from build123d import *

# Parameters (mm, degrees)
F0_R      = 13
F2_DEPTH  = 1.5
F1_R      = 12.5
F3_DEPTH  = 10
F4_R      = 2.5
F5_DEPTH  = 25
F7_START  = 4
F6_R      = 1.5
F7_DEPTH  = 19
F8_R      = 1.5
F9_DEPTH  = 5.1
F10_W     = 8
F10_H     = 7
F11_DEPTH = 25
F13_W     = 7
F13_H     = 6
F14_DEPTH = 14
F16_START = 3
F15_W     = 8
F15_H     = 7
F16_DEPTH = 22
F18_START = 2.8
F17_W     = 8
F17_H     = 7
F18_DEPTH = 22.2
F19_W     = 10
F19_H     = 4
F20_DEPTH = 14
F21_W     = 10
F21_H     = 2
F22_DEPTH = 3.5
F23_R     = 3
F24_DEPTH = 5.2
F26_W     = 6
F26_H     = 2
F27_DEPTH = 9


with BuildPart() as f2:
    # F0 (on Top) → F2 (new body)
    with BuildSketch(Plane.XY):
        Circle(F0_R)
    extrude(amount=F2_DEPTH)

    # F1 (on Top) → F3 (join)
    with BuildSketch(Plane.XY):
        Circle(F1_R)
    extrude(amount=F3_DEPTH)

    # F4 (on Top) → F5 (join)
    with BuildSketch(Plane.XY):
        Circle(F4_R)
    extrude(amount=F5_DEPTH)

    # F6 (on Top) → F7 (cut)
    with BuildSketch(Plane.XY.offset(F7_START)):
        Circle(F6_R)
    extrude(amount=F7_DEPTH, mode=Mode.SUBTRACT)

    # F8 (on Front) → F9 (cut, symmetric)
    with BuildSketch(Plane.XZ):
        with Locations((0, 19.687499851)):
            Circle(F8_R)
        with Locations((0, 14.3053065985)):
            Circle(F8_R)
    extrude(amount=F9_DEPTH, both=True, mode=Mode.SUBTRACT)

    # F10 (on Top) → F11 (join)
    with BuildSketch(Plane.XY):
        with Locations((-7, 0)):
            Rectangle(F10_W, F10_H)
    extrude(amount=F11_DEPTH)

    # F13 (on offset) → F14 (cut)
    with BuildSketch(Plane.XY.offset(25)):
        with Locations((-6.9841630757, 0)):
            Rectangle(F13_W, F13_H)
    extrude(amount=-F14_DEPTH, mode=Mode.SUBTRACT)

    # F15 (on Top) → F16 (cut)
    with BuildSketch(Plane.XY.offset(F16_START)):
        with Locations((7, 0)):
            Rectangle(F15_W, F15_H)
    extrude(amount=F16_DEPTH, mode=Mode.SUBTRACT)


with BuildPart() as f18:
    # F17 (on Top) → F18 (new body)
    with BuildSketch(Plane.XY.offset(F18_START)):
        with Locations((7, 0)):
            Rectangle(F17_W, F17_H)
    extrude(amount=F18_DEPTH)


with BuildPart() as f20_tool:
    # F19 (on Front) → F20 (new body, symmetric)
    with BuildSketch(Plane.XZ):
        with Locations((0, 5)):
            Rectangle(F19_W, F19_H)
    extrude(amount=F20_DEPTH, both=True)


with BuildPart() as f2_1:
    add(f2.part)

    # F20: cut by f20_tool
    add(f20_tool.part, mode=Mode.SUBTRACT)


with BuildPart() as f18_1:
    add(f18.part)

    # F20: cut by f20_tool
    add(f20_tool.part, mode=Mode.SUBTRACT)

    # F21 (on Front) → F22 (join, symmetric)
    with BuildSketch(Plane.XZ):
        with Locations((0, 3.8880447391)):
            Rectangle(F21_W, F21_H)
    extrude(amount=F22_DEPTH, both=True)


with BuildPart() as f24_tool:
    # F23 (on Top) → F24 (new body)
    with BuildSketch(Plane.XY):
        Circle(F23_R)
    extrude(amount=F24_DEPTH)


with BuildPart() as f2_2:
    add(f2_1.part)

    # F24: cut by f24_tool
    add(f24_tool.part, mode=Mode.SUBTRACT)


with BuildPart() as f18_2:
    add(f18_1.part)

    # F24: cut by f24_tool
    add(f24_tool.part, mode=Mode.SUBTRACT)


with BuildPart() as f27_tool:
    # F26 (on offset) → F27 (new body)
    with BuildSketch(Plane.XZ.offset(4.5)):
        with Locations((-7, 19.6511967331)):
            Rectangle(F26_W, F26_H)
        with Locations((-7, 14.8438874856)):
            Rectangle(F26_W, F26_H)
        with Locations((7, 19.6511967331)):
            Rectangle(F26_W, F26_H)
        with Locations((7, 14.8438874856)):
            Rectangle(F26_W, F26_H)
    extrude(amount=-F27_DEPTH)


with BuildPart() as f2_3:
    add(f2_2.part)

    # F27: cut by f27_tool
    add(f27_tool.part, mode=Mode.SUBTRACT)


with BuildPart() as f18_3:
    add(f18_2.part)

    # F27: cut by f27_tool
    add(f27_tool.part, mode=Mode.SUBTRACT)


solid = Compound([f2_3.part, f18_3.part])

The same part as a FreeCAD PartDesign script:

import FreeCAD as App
import Part
import Sketcher

V = App.Vector

doc = App.newDocument("Part")
body = doc.addObject("PartDesign::Body", "Body")

sketch1 = doc.addObject("Sketcher::SketchObject", "Sketch")
body.addObject(sketch1)
sketch1.AttachmentSupport = (doc.XY_Plane, [""])
sketch1.MapMode = "FlatFace"
sketch1.addGeometry(Part.Circle(V(0, 0, 0), V(0, 0, 1), 13), False)
sketch1.addConstraint([
    Sketcher.Constraint("Coincident", 0, 3, -1, 1),
    Sketcher.Constraint("Diameter", 0, 26.0),
])
pad1 = doc.addObject("PartDesign::Pad", "Pad")
body.addObject(pad1)
pad1.Profile = sketch1
pad1.Length = 1.5

sketch2 = doc.addObject("Sketcher::SketchObject", "Sketch001")
body.addObject(sketch2)
sketch2.AttachmentSupport = (doc.XY_Plane, [""])
sketch2.MapMode = "FlatFace"
sketch2.addGeometry(Part.Circle(V(0, 0, 0), V(0, 0, 1), 12.5), False)
sketch2.addConstraint([
    Sketcher.Constraint("Coincident", 0, 3, -1, 1),
    Sketcher.Constraint("Diameter", 0, 25.0),
])
pad2 = doc.addObject("PartDesign::Pad", "Pad001")
body.addObject(pad2)
pad2.Profile = sketch2
pad2.Length = 10

sketch3 = doc.addObject("Sketcher::SketchObject", "Sketch002")
body.addObject(sketch3)
sketch3.AttachmentSupport = (doc.XY_Plane, [""])
sketch3.MapMode = "FlatFace"
sketch3.addGeometry(Part.Circle(V(0, 0, 0), V(0, 0, 1), 2.5), False)
sketch3.addConstraint([
    Sketcher.Constraint("Coincident", 0, 3, -1, 1),
    Sketcher.Constraint("Diameter", 0, 5.0),
])
pad3 = doc.addObject("PartDesign::Pad", "Pad002")
body.addObject(pad3)
pad3.Profile = sketch3
pad3.Length = 25

sketch4 = doc.addObject("Sketcher::SketchObject", "Sketch003")
body.addObject(sketch4)
sketch4.AttachmentSupport = (doc.XY_Plane, [""])
sketch4.MapMode = "FlatFace"
sketch4.AttachmentOffset = App.Placement(V(0, 0, 4), App.Rotation())
sketch4.addGeometry(Part.Circle(V(0, 0, 0), V(0, 0, 1), 1.5), False)
sketch4.addConstraint([
    Sketcher.Constraint("Coincident", 0, 3, -1, 1),
    Sketcher.Constraint("Diameter", 0, 3.0),
])
pocket1 = doc.addObject("PartDesign::Pocket", "Pocket")
body.addObject(pocket1)
pocket1.Profile = sketch4
pocket1.Length = 19
pocket1.Reversed = True

sketch5 = doc.addObject("Sketcher::SketchObject", "Sketch004")
body.addObject(sketch5)
sketch5.AttachmentSupport = (doc.XZ_Plane, [""])
sketch5.MapMode = "FlatFace"
sketch5.addGeometry([
    Part.Circle(V(0, 19.6875, 0), V(0, 0, 1), 1.5),
    Part.Circle(V(0, 14.305307, 0), V(0, 0, 1), 1.5),
], False)
sketch5.addConstraint([
    Sketcher.Constraint("Equal", 0, 1),
    Sketcher.Constraint("PointOnObject", 0, 3, -2),
    Sketcher.Constraint("PointOnObject", 1, 3, -2),
    Sketcher.Constraint("Diameter", 0, 3.0),
    Sketcher.Constraint("DistanceY", -1, 1, 0, 3, 19.6875),
    Sketcher.Constraint("DistanceY", -1, 1, 1, 3, 14.305307),
])
pocket2 = doc.addObject("PartDesign::Pocket", "Pocket001")
body.addObject(pocket2)
pocket2.Profile = sketch5
pocket2.Length = 10.2
pocket2.Midplane = True

sketch6 = doc.addObject("Sketcher::SketchObject", "Sketch005")
body.addObject(sketch6)
sketch6.AttachmentSupport = (doc.XY_Plane, [""])
sketch6.MapMode = "FlatFace"
sketch6.addGeometry([
    Part.LineSegment(V(-11, 3.5, 0), V(-11, -3.5, 0)),
    Part.LineSegment(V(-11, -3.5, 0), V(-3, -3.5, 0)),
    Part.LineSegment(V(-3, -3.5, 0), V(-3, 3.5, 0)),
    Part.LineSegment(V(-3, 3.5, 0), V(-11, 3.5, 0)),
], False)
sketch6.addConstraint([
    Sketcher.Constraint("Coincident", 0, 2, 1, 1),
    Sketcher.Constraint("Coincident", 1, 2, 2, 1),
    Sketcher.Constraint("Coincident", 2, 2, 3, 1),
    Sketcher.Constraint("Coincident", 3, 2, 0, 1),
    Sketcher.Constraint("Vertical", 0),
    Sketcher.Constraint("Horizontal", 1),
    Sketcher.Constraint("Vertical", 2),
    Sketcher.Constraint("Horizontal", 3),
    Sketcher.Constraint("DistanceX", 1, 1, 1, 2, 8.0),
    Sketcher.Constraint("DistanceY", 0, 2, 0, 1, 7.0),
    Sketcher.Constraint("DistanceX", 0, 2, -1, 1, 11.0),
    Sketcher.Constraint("DistanceY", 0, 2, -1, 1, 3.5),
])
pad4 = doc.addObject("PartDesign::Pad", "Pad003")
body.addObject(pad4)
pad4.Profile = sketch6
pad4.Length = 25

sketch7 = doc.addObject("Sketcher::SketchObject", "Sketch006")
body.addObject(sketch7)
sketch7.AttachmentSupport = (doc.XY_Plane, [""])
sketch7.MapMode = "FlatFace"
sketch7.AttachmentOffset = App.Placement(V(0, 0, 25), App.Rotation())
sketch7.addGeometry([
    Part.LineSegment(V(-10.484163, 3, 0), V(-10.484163, -3, 0)),
    Part.LineSegment(V(-10.484163, -3, 0), V(-3.484163, -3, 0)),
    Part.LineSegment(V(-3.484163, -3, 0), V(-3.484163, 3, 0)),
    Part.LineSegment(V(-3.484163, 3, 0), V(-10.484163, 3, 0)),
], False)
sketch7.addConstraint([
    Sketcher.Constraint("Coincident", 0, 2, 1, 1),
    Sketcher.Constraint("Coincident", 1, 2, 2, 1),
    Sketcher.Constraint("Coincident", 2, 2, 3, 1),
    Sketcher.Constraint("Coincident", 3, 2, 0, 1),
    Sketcher.Constraint("Vertical", 0),
    Sketcher.Constraint("Horizontal", 1),
    Sketcher.Constraint("Vertical", 2),
    Sketcher.Constraint("Horizontal", 3),
    Sketcher.Constraint("DistanceX", 1, 1, 1, 2, 7.0),
    Sketcher.Constraint("DistanceY", 0, 2, 0, 1, 6.0),
    Sketcher.Constraint("DistanceY", 0, 2, -1, 1, 3.0),
    Sketcher.Constraint("DistanceX", 0, 2, -1, 1, 10.484163),
])
pocket3 = doc.addObject("PartDesign::Pocket", "Pocket002")
body.addObject(pocket3)
pocket3.Profile = sketch7
pocket3.Length = 14

sketch8 = doc.addObject("Sketcher::SketchObject", "Sketch007")
body.addObject(sketch8)
sketch8.AttachmentSupport = (doc.XY_Plane, [""])
sketch8.MapMode = "FlatFace"
sketch8.AttachmentOffset = App.Placement(V(0, 0, 3), App.Rotation())
sketch8.addGeometry([
    Part.LineSegment(V(3, 3.5, 0), V(3, -3.5, 0)),
    Part.LineSegment(V(3, -3.5, 0), V(11, -3.5, 0)),
    Part.LineSegment(V(11, -3.5, 0), V(11, 3.5, 0)),
    Part.LineSegment(V(11, 3.5, 0), V(3, 3.5, 0)),
], False)
sketch8.addConstraint([
    Sketcher.Constraint("Coincident", 0, 2, 1, 1),
    Sketcher.Constraint("Coincident", 1, 2, 2, 1),
    Sketcher.Constraint("Coincident", 2, 2, 3, 1),
    Sketcher.Constraint("Coincident", 3, 2, 0, 1),
    Sketcher.Constraint("Vertical", 0),
    Sketcher.Constraint("Horizontal", 1),
    Sketcher.Constraint("Vertical", 2),
    Sketcher.Constraint("Horizontal", 3),
    Sketcher.Constraint("DistanceX", 1, 1, 1, 2, 8.0),
    Sketcher.Constraint("DistanceY", 0, 2, 0, 1, 7.0),
    Sketcher.Constraint("DistanceX", -1, 1, 0, 2, 3.0),
    Sketcher.Constraint("DistanceY", 0, 2, -1, 1, 3.5),
])
pocket4 = doc.addObject("PartDesign::Pocket", "Pocket003")
body.addObject(pocket4)
pocket4.Profile = sketch8
pocket4.Length = 22
pocket4.Reversed = True
body2 = doc.addObject("PartDesign::Body", "Body001")

sketch9 = doc.addObject("Sketcher::SketchObject", "Sketch008")
body2.addObject(sketch9)
sketch9.AttachmentSupport = (doc.getObject("XY_Plane001"), [""])
sketch9.MapMode = "FlatFace"
sketch9.AttachmentOffset = App.Placement(V(0, 0, 2.8), App.Rotation())
sketch9.addGeometry([
    Part.LineSegment(V(3, 3.5, 0), V(3, -3.5, 0)),
    Part.LineSegment(V(3, -3.5, 0), V(11, -3.5, 0)),
    Part.LineSegment(V(11, -3.5, 0), V(11, 3.5, 0)),
    Part.LineSegment(V(11, 3.5, 0), V(3, 3.5, 0)),
], False)
sketch9.addConstraint([
    Sketcher.Constraint("Coincident", 0, 2, 1, 1),
    Sketcher.Constraint("Coincident", 1, 2, 2, 1),
    Sketcher.Constraint("Coincident", 2, 2, 3, 1),
    Sketcher.Constraint("Coincident", 3, 2, 0, 1),
    Sketcher.Constraint("Vertical", 0),
    Sketcher.Constraint("Horizontal", 1),
    Sketcher.Constraint("Vertical", 2),
    Sketcher.Constraint("Horizontal", 3),
    Sketcher.Constraint("DistanceX", 1, 1, 1, 2, 8.0),
    Sketcher.Constraint("DistanceY", 0, 2, 0, 1, 7.0),
    Sketcher.Constraint("DistanceX", -1, 1, 0, 2, 3.0),
    Sketcher.Constraint("DistanceY", 0, 2, -1, 1, 3.5),
])
pad5 = doc.addObject("PartDesign::Pad", "Pad004")
body2.addObject(pad5)
pad5.Profile = sketch9
pad5.Length = 22.2
body3 = doc.addObject("PartDesign::Body", "Body002")

sketch10 = doc.addObject("Sketcher::SketchObject", "Sketch009")
body3.addObject(sketch10)
sketch10.AttachmentSupport = (doc.getObject("XZ_Plane002"), [""])
sketch10.MapMode = "FlatFace"
sketch10.addGeometry([
    Part.LineSegment(V(-5, 7, 0), V(-5, 3, 0)),
    Part.LineSegment(V(-5, 3, 0), V(5, 3, 0)),
    Part.LineSegment(V(5, 3, 0), V(5, 7, 0)),
    Part.LineSegment(V(5, 7, 0), V(-5, 7, 0)),
], False)
sketch10.addConstraint([
    Sketcher.Constraint("Coincident", 0, 2, 1, 1),
    Sketcher.Constraint("Coincident", 1, 2, 2, 1),
    Sketcher.Constraint("Coincident", 2, 2, 3, 1),
    Sketcher.Constraint("Coincident", 3, 2, 0, 1),
    Sketcher.Constraint("Vertical", 0),
    Sketcher.Constraint("Horizontal", 1),
    Sketcher.Constraint("Vertical", 2),
    Sketcher.Constraint("Horizontal", 3),
    Sketcher.Constraint("DistanceX", 1, 1, 1, 2, 10.0),
    Sketcher.Constraint("DistanceY", 0, 2, 0, 1, 4.0),
    Sketcher.Constraint("DistanceX", 0, 2, -1, 1, 5.0),
    Sketcher.Constraint("DistanceY", -1, 1, 0, 2, 3.0),
])
pad6 = doc.addObject("PartDesign::Pad", "Pad005")
body3.addObject(pad6)
pad6.Profile = sketch10
pad6.Length = 28
pad6.Midplane = True
doc.recompute()

body4 = doc.addObject("PartDesign::Body", "Body003")
body4.BaseFeature = body3
boolean = doc.addObject("PartDesign::Boolean", "Boolean")
body.addObject(boolean)
boolean.Type = "Cut"
boolean.addObjects([body4])
doc.recompute()

boolean2 = doc.addObject("PartDesign::Boolean", "Boolean001")
body2.addObject(boolean2)
boolean2.Type = "Cut"
boolean2.addObjects([body3])

sketch11 = doc.addObject("Sketcher::SketchObject", "Sketch010")
body2.addObject(sketch11)
sketch11.AttachmentSupport = (doc.getObject("XZ_Plane001"), [""])
sketch11.MapMode = "FlatFace"
sketch11.addGeometry([
    Part.LineSegment(V(-5, 4.888045, 0), V(-5, 2.888045, 0)),
    Part.LineSegment(V(-5, 2.888045, 0), V(5, 2.888045, 0)),
    Part.LineSegment(V(5, 2.888045, 0), V(5, 4.888045, 0)),
    Part.LineSegment(V(5, 4.888045, 0), V(-5, 4.888045, 0)),
], False)
sketch11.addConstraint([
    Sketcher.Constraint("Coincident", 0, 2, 1, 1),
    Sketcher.Constraint("Coincident", 1, 2, 2, 1),
    Sketcher.Constraint("Coincident", 2, 2, 3, 1),
    Sketcher.Constraint("Coincident", 3, 2, 0, 1),
    Sketcher.Constraint("Vertical", 0),
    Sketcher.Constraint("Horizontal", 1),
    Sketcher.Constraint("Vertical", 2),
    Sketcher.Constraint("Horizontal", 3),
    Sketcher.Constraint("DistanceX", 1, 1, 1, 2, 10.0),
    Sketcher.Constraint("DistanceY", 0, 2, 0, 1, 2.0),
    Sketcher.Constraint("DistanceX", 0, 2, -1, 1, 5.0),
    Sketcher.Constraint("DistanceY", -1, 1, 0, 2, 2.888045),
])
pad7 = doc.addObject("PartDesign::Pad", "Pad006")
body2.addObject(pad7)
pad7.Profile = sketch11
pad7.Length = 7
pad7.Midplane = True
body5 = doc.addObject("PartDesign::Body", "Body004")

sketch12 = doc.addObject("Sketcher::SketchObject", "Sketch011")
body5.addObject(sketch12)
sketch12.AttachmentSupport = (doc.getObject("XY_Plane004"), [""])
sketch12.MapMode = "FlatFace"
sketch12.addGeometry(Part.Circle(V(0, 0, 0), V(0, 0, 1), 3), False)
sketch12.addConstraint([
    Sketcher.Constraint("Coincident", 0, 3, -1, 1),
    Sketcher.Constraint("Diameter", 0, 6.0),
])
pad8 = doc.addObject("PartDesign::Pad", "Pad007")
body5.addObject(pad8)
pad8.Profile = sketch12
pad8.Length = 5.2
doc.recompute()

body6 = doc.addObject("PartDesign::Body", "Body005")
body6.BaseFeature = body5
boolean3 = doc.addObject("PartDesign::Boolean", "Boolean002")
body.addObject(boolean3)
boolean3.Type = "Cut"
boolean3.addObjects([body6])
doc.recompute()

boolean4 = doc.addObject("PartDesign::Boolean", "Boolean003")
body2.addObject(boolean4)
boolean4.Type = "Cut"
boolean4.addObjects([body5])
body7 = doc.addObject("PartDesign::Body", "Body006")
body7.AllowCompound = True

sketch13 = doc.addObject("Sketcher::SketchObject", "Sketch012")
body7.addObject(sketch13)
sketch13.AttachmentSupport = (doc.getObject("XZ_Plane006"), [""])
sketch13.MapMode = "FlatFace"
sketch13.AttachmentOffset = App.Placement(V(0, 0, 4.5), App.Rotation())
sketch13.addGeometry([
    Part.LineSegment(V(-10, 20.651197, 0), V(-10, 18.651197, 0)),
    Part.LineSegment(V(-10, 18.651197, 0), V(-4, 18.651197, 0)),
    Part.LineSegment(V(-4, 18.651197, 0), V(-4, 20.651197, 0)),
    Part.LineSegment(V(-4, 20.651197, 0), V(-10, 20.651197, 0)),
    Part.LineSegment(V(-10, 15.843887, 0), V(-10, 13.843887, 0)),
    Part.LineSegment(V(-10, 13.843887, 0), V(-4, 13.843887, 0)),
    Part.LineSegment(V(-4, 13.843887, 0), V(-4, 15.843887, 0)),
    Part.LineSegment(V(-4, 15.843887, 0), V(-10, 15.843887, 0)),
    Part.LineSegment(V(4, 20.651197, 0), V(4, 18.651197, 0)),
    Part.LineSegment(V(4, 18.651197, 0), V(10, 18.651197, 0)),
    Part.LineSegment(V(10, 18.651197, 0), V(10, 20.651197, 0)),
    Part.LineSegment(V(10, 20.651197, 0), V(4, 20.651197, 0)),
    Part.LineSegment(V(4, 15.843887, 0), V(4, 13.843887, 0)),
    Part.LineSegment(V(4, 13.843887, 0), V(10, 13.843887, 0)),
    Part.LineSegment(V(10, 13.843887, 0), V(10, 15.843887, 0)),
    Part.LineSegment(V(10, 15.843887, 0), V(4, 15.843887, 0)),
], False)
sketch13.addConstraint([
    Sketcher.Constraint("Coincident", 0, 2, 1, 1),
    Sketcher.Constraint("Coincident", 1, 2, 2, 1),
    Sketcher.Constraint("Coincident", 2, 2, 3, 1),
    Sketcher.Constraint("Coincident", 3, 2, 0, 1),
    Sketcher.Constraint("Coincident", 4, 2, 5, 1),
    Sketcher.Constraint("Coincident", 5, 2, 6, 1),
    Sketcher.Constraint("Coincident", 6, 2, 7, 1),
    Sketcher.Constraint("Coincident", 7, 2, 4, 1),
    Sketcher.Constraint("Coincident", 8, 2, 9, 1),
    Sketcher.Constraint("Coincident", 9, 2, 10, 1),
    Sketcher.Constraint("Coincident", 10, 2, 11, 1),
    Sketcher.Constraint("Coincident", 11, 2, 8, 1),
    Sketcher.Constraint("Coincident", 12, 2, 13, 1),
    Sketcher.Constraint("Coincident", 13, 2, 14, 1),
    Sketcher.Constraint("Coincident", 14, 2, 15, 1),
    Sketcher.Constraint("Coincident", 15, 2, 12, 1),
    Sketcher.Constraint("Vertical", 0),
    Sketcher.Constraint("Horizontal", 1),
    Sketcher.Constraint("Vertical", 2),
    Sketcher.Constraint("Horizontal", 3),
    Sketcher.Constraint("Vertical", 4),
    Sketcher.Constraint("Horizontal", 5),
    Sketcher.Constraint("Vertical", 6),
    Sketcher.Constraint("Horizontal", 7),
    Sketcher.Constraint("Vertical", 8),
    Sketcher.Constraint("Horizontal", 9),
    Sketcher.Constraint("Vertical", 10),
    Sketcher.Constraint("Horizontal", 11),
    Sketcher.Constraint("Vertical", 12),
    Sketcher.Constraint("Horizontal", 13),
    Sketcher.Constraint("Vertical", 14),
    Sketcher.Constraint("Horizontal", 15),
    Sketcher.Constraint("Symmetric", 1, 2, 8, 2, -2),
    Sketcher.Constraint("Symmetric", 3, 2, 10, 2, -2),
    Sketcher.Constraint("Symmetric", 5, 2, 12, 2, -2),
    Sketcher.Constraint("Symmetric", 7, 2, 14, 2, -2),
    Sketcher.Constraint("Vertical", 3, 2, 4, 2),
    Sketcher.Constraint("Vertical", 2, 2, 5, 2),
    Sketcher.Constraint("Equal", 2, 4),
    Sketcher.Constraint("DistanceX", 1, 1, 1, 2, 6.0),
    Sketcher.Constraint("DistanceY", 0, 2, 0, 1, 2.0),
    Sketcher.Constraint("DistanceX", 0, 2, -1, 1, 10.0),
    Sketcher.Constraint("DistanceY", 4, 2, 0, 2, 4.807309),
    Sketcher.Constraint("DistanceY", -1, 1, 0, 2, 18.651197),
])
pad9 = doc.addObject("PartDesign::Pad", "Pad008")
body7.addObject(pad9)
pad9.Profile = sketch13
pad9.Length = 9
pad9.Reversed = True
doc.recompute()

body8 = doc.addObject("PartDesign::Body", "Body007")
body8.BaseFeature = body7
boolean5 = doc.addObject("PartDesign::Boolean", "Boolean004")
body.addObject(boolean5)
boolean5.Type = "Cut"
boolean5.addObjects([body8])
doc.recompute()

boolean6 = doc.addObject("PartDesign::Boolean", "Boolean005")
body2.addObject(boolean6)
boolean6.Type = "Cut"
boolean6.addObjects([body7])

doc.recompute()
